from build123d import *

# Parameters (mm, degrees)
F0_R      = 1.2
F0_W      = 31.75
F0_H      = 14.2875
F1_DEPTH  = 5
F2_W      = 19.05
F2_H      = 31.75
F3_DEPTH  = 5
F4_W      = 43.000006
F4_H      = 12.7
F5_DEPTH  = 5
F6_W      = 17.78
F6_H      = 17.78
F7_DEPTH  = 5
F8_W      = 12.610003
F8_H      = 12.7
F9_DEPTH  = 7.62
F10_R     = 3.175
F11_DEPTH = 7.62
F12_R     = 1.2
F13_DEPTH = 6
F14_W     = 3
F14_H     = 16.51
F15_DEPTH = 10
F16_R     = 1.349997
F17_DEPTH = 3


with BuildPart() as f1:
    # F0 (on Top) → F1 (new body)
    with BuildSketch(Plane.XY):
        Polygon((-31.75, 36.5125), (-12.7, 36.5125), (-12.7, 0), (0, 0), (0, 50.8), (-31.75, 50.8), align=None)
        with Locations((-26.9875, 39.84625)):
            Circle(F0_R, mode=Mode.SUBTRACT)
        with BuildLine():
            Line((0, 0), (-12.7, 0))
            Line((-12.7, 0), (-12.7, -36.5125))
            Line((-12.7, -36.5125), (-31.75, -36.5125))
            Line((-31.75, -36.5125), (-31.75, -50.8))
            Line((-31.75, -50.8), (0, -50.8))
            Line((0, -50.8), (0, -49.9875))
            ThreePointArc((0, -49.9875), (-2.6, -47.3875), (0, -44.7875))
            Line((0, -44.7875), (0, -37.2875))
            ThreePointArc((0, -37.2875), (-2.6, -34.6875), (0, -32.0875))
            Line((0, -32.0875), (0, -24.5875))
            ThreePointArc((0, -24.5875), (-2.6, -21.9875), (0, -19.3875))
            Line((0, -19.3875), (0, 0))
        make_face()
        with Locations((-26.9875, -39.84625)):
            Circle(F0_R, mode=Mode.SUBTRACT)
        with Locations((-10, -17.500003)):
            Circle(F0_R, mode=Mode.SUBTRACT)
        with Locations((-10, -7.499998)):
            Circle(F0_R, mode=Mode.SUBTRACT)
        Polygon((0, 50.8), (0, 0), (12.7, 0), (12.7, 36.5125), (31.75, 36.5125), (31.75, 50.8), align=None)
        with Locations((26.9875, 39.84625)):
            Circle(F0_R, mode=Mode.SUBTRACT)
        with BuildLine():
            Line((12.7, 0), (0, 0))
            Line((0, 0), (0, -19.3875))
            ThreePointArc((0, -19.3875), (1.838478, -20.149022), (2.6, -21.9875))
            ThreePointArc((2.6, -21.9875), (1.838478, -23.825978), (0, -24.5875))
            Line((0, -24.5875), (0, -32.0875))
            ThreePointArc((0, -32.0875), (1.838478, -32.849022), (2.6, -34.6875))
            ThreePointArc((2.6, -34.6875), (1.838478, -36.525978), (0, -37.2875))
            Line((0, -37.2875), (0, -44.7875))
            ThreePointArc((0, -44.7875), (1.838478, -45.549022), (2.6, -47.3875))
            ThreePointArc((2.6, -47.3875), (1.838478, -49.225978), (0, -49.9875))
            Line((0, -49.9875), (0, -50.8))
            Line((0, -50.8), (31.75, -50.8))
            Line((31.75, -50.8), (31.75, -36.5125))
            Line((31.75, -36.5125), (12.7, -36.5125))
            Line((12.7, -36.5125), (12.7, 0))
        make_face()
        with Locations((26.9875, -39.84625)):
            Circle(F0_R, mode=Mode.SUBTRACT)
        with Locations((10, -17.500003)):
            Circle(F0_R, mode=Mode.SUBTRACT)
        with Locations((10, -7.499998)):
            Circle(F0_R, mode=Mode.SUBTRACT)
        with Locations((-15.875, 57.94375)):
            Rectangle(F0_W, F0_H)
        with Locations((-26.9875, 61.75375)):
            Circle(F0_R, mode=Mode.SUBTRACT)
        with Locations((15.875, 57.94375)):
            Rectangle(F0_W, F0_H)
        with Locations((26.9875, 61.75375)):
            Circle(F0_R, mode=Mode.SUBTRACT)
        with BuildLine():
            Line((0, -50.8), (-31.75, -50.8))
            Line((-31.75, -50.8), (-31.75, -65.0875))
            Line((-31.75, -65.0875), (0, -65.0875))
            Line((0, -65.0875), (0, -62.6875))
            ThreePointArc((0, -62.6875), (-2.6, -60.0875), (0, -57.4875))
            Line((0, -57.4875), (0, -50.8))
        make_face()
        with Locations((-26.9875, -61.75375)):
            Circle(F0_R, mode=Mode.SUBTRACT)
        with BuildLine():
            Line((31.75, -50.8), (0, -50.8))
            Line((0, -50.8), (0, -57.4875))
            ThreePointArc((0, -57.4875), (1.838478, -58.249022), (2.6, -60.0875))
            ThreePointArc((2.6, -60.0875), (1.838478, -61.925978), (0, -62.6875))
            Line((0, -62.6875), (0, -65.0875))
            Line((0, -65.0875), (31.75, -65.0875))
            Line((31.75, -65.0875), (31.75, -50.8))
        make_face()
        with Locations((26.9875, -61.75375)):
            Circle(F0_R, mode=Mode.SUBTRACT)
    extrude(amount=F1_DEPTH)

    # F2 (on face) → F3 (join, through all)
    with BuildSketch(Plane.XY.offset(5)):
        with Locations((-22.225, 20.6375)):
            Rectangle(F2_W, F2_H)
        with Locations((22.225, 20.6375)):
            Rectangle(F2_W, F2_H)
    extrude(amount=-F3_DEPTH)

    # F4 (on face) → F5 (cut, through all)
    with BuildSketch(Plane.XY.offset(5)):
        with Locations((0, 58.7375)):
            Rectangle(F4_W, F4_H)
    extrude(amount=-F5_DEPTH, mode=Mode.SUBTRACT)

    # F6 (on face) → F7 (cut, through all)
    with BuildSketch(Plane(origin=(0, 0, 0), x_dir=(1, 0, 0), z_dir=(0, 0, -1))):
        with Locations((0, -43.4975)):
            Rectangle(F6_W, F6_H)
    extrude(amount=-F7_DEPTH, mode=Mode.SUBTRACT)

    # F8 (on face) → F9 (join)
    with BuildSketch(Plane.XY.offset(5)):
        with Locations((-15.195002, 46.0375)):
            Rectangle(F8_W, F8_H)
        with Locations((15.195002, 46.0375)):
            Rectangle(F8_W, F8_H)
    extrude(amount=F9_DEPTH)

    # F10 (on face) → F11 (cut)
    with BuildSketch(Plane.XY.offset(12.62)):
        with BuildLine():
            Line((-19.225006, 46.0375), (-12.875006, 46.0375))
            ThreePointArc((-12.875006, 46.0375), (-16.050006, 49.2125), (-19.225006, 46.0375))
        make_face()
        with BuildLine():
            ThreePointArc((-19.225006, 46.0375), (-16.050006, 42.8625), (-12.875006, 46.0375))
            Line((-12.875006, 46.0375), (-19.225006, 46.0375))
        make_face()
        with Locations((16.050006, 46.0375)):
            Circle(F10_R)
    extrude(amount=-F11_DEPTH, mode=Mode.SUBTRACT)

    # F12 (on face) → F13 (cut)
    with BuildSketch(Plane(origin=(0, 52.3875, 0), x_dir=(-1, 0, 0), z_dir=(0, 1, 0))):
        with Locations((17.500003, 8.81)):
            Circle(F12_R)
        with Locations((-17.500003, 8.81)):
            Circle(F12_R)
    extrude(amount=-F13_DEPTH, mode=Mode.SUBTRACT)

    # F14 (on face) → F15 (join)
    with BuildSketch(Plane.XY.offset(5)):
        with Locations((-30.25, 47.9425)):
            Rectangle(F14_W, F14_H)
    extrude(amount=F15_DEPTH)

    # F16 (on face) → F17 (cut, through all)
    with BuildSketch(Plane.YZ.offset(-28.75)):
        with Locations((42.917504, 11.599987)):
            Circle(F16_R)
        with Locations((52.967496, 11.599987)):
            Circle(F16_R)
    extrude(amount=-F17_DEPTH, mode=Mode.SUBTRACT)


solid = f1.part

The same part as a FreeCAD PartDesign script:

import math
import FreeCAD as App
import Part
import Sketcher
Q = App.Units.Quantity

doc = App.newDocument("Part")
params = doc.addObject("Spreadsheet::Sheet", "Params")
for row, (alias, value) in enumerate([
    ("sketch1_width", "2.5 in"),
    ("sketch1_height", "2.875 in"),
    ("sketch1_height2", "1.125 in"),
    ("pad1_length", "5 mm"),
    ("sketch2_width", "0.75 in"),
    ("sketch2_height", "1.25 in"),
    ("sketch3_height", "0.5 in"),
    ("sketch4_width", "0.7 in"),
    ("sketch5_height", "0.5 in"),
    ("pad3_length", "0.3 in"),
    ("sketch6_diameter", "0.25 in"),
    ("pocket3_length", "0.3 in"),
    ("pocket4_length", "6 mm"),
    ("sketch8_height", "0.65 in"),
    ("pad4_length", "10 mm"),
], start=1):
    params.set(f"A{row}", alias)
    params.set(f"B{row}", "=" + value)
    params.setAlias(f"B{row}", alias)

body = doc.addObject("PartDesign::Body", "Body")

sketch1 = doc.addObject("Sketcher::SketchObject", "Sketch")
body.addObject(sketch1)
sketch1.AttachmentSupport = (doc.XY_Plane, [""])
sketch1.MapMode = "FlatFace"
sketch1.addGeometry(Part.LineSegment(App.Vector(-31.8, 36.5, 0), App.Vector(-12.7, 36.5, 0)), False)
sketch1.addGeometry(Part.LineSegment(App.Vector(-12.7, 36.5, 0), App.Vector(-12.7, -36.5, 0)), False)
sketch1.addGeometry(Part.LineSegment(App.Vector(-12.7, -36.5, 0), App.Vector(-31.8, -36.5, 0)), False)
sketch1.addGeometry(Part.LineSegment(App.Vector(-31.8, -36.5, 0), App.Vector(-31.8, -65.1, 0)), False)
sketch1.addGeometry(Part.LineSegment(App.Vector(-31.8, -65.1, 0), App.Vector(31.8, -65.1, 0)), False)
sketch1.addGeometry(Part.LineSegment(App.Vector(31.8, -65.1, 0), App.Vector(31.8, -36.5, 0)), False)
sketch1.addGeometry(Part.LineSegment(App.Vector(31.8, -36.5, 0), App.Vector(12.7, -36.5, 0)), False)
sketch1.addGeometry(Part.LineSegment(App.Vector(12.7, -36.5, 0), App.Vector(12.7, 36.5, 0)), False)
sketch1.addGeometry(Part.LineSegment(App.Vector(12.7, 36.5, 0), App.Vector(31.8, 36.5, 0)), False)
sketch1.addGeometry(Part.LineSegment(App.Vector(31.8, 36.5, 0), App.Vector(31.8, 65.1, 0)), False)
sketch1.addGeometry(Part.LineSegment(App.Vector(31.8, 65.1, 0), App.Vector(-31.8, 65.1, 0)), False)
sketch1.addGeometry(Part.LineSegment(App.Vector(-31.8, 65.1, 0), App.Vector(-31.8, 36.5, 0)), False)
sketch1.addGeometry(Part.Circle(App.Vector(-27, -61.8, 0), App.Vector(0, 0, 1), 1.2), False)
sketch1.addGeometry(Part.Circle(App.Vector(-27, -39.8, 0), App.Vector(0, 0, 1), 1.2), False)
sketch1.addGeometry(Part.Circle(App.Vector(-10, -17.5, 0), App.Vector(0, 0, 1), 1.2), False)
sketch1.addGeometry(Part.Circle(App.Vector(-10, -7.5, 0), App.Vector(0, 0, 1), 1.2), False)
sketch1.addGeometry(Part.ArcOfCircle(Part.Circle(App.Vector(0, -60.1, 0), App.Vector(0, 0, 1), 2.6), math.radians(90), math.radians(270)), False)
sketch1.addGeometry(Part.ArcOfCircle(Part.Circle(App.Vector(0, -60.1, 0), App.Vector(0, 0, 1), 2.6), math.radians(0), math.radians(90)), False)
sketch1.addGeometry(Part.ArcOfCircle(Part.Circle(App.Vector(0, -60.1, 0), App.Vector(0, 0, 1), 2.6), math.radians(-90), math.radians(0)), False)
sketch1.addGeometry(Part.ArcOfCircle(Part.Circle(App.Vector(0, -47.4, 0), App.Vector(0, 0, 1), 2.6), math.radians(90), math.radians(270)), False)
sketch1.addGeometry(Part.ArcOfCircle(Part.Circle(App.Vector(0, -47.4, 0), App.Vector(0, 0, 1), 2.6), math.radians(0), math.radians(90)), False)
sketch1.addGeometry(Part.ArcOfCircle(Part.Circle(App.Vector(0, -47.4, 0), App.Vector(0, 0, 1), 2.6), math.radians(-90), math.radians(0)), False)
sketch1.addGeometry(Part.ArcOfCircle(Part.Circle(App.Vector(0, -34.7, 0), App.Vector(0, 0, 1), 2.6), math.radians(90), math.radians(270)), False)
sketch1.addGeometry(Part.ArcOfCircle(Part.Circle(App.Vector(0, -34.7, 0), App.Vector(0, 0, 1), 2.6), math.radians(0), math.radians(90)), False)
sketch1.addGeometry(Part.ArcOfCircle(Part.Circle(App.Vector(0, -34.7, 0), App.Vector(0, 0, 1), 2.6), math.radians(-90), math.radians(0)), False)
sketch1.addGeometry(Part.Circle(App.Vector(27, -61.8, 0), App.Vector(0, 0, 1), 1.2), False)
sketch1.addGeometry(Part.Circle(App.Vector(27, -39.8, 0), App.Vector(0, 0, 1), 1.2), False)
sketch1.addGeometry(Part.ArcOfCircle(Part.Circle(App.Vector(0, -22, 0), App.Vector(0, 0, 1), 2.6), math.radians(90), math.radians(270)), False)
sketch1.addGeometry(Part.ArcOfCircle(Part.Circle(App.Vector(0, -22, 0), App.Vector(0, 0, 1), 2.6), math.radians(0), math.radians(90)), False)
sketch1.addGeometry(Part.ArcOfCircle(Part.Circle(App.Vector(0, -22, 0), App.Vector(0, 0, 1), 2.6), math.radians(-90), math.radians(0)), False)
sketch1.addGeometry(Part.Circle(App.Vector(10, -17.5, 0), App.Vector(0, 0, 1), 1.2), False)
sketch1.addGeometry(Part.Circle(App.Vector(10, -7.5, 0), App.Vector(0, 0, 1), 1.2), False)
sketch1.addGeometry(Part.Circle(App.Vector(-27, 39.8, 0), App.Vector(0, 0, 1), 1.2), False)
sketch1.addGeometry(Part.Circle(App.Vector(-27, 61.8, 0), App.Vector(0, 0, 1), 1.2), False)
sketch1.addGeometry(Part.Circle(App.Vector(27, 39.8, 0), App.Vector(0, 0, 1), 1.2), False)
sketch1.addGeometry(Part.Circle(App.Vector(27, 61.8, 0), App.Vector(0, 0, 1), 1.2), False)
sketch1.addConstraint(Sketcher.Constraint("Coincident", 0, 2, 1, 1))
sketch1.addConstraint(Sketcher.Constraint("Coincident", 1, 2, 2, 1))
sketch1.addConstraint(Sketcher.Constraint("Coincident", 2, 2, 3, 1))
sketch1.addConstraint(Sketcher.Constraint("Coincident", 3, 2, 4, 1))
sketch1.addConstraint(Sketcher.Constraint("Coincident", 4, 2, 5, 1))
sketch1.addConstraint(Sketcher.Constraint("Coincident", 5, 2, 6, 1))
sketch1.addConstraint(Sketcher.Constraint("Coincident", 6, 2, 7, 1))
sketch1.addConstraint(Sketcher.Constraint("Coincident", 7, 2, 8, 1))
sketch1.addConstraint(Sketcher.Constraint("Coincident", 8, 2, 9, 1))
sketch1.addConstraint(Sketcher.Constraint("Coincident", 9, 2, 10, 1))
sketch1.addConstraint(Sketcher.Constraint("Coincident", 10, 2, 11, 1))
sketch1.addConstraint(Sketcher.Constraint("Coincident", 11, 2, 0, 1))
sketch1.addConstraint(Sketcher.Constraint("Tangent", 16, 1, 17, 2))
sketch1.addConstraint(Sketcher.Constraint("Tangent", 17, 1, 18, 2))
sketch1.addConstraint(Sketcher.Constraint("Tangent", 18, 1, 16, 2))
sketch1.addConstraint(Sketcher.Constraint("Tangent", 19, 1, 20, 2))
sketch1.addConstraint(Sketcher.Constraint("Tangent", 20, 1, 21, 2))
sketch1.addConstraint(Sketcher.Constraint("Tangent", 21, 1, 19, 2))
sketch1.addConstraint(Sketcher.Constraint("Tangent", 22, 1, 23, 2))
sketch1.addConstraint(Sketcher.Constraint("Tangent", 23, 1, 24, 2))
sketch1.addConstraint(Sketcher.Constraint("Tangent", 24, 1, 22, 2))
sketch1.addConstraint(Sketcher.Constraint("Tangent", 27, 1, 28, 2))
sketch1.addConstraint(Sketcher.Constraint("Tangent", 28, 1, 29, 2))
sketch1.addConstraint(Sketcher.Constraint("Tangent", 29, 1, 27, 2))
sketch1.addConstraint(Sketcher.Constraint("Horizontal", 0))
sketch1.addConstraint(Sketcher.Constraint("Vertical", 1))
sketch1.addConstraint(Sketcher.Constraint("Horizontal", 2))
sketch1.addConstraint(Sketcher.Constraint("Vertical", 3))
sketch1.addConstraint(Sketcher.Constraint("Horizontal", 4))
sketch1.addConstraint(Sketcher.Constraint("Vertical", 5))
sketch1.addConstraint(Sketcher.Constraint("Horizontal", 6))
sketch1.addConstraint(Sketcher.Constraint("Vertical", 7))
sketch1.addConstraint(Sketcher.Constraint("Horizontal", 8))
sketch1.addConstraint(Sketcher.Constraint("Vertical", 9))
sketch1.addConstraint(Sketcher.Constraint("Horizontal", 10))
sketch1.addConstraint(Sketcher.Constraint("Vertical", 11))
sketch1.addConstraint(Sketcher.Constraint("Equal", 12, 13))
sketch1.addConstraint(Sketcher.Constraint("Equal", 13, 14))
sketch1.addConstraint(Sketcher.Constraint("Equal", 14, 15))
sketch1.addConstraint(Sketcher.Constraint("Equal", 18, 19))
sketch1.addConstraint(Sketcher.Constraint("Equal", 21, 22))
sketch1.addConstraint(Sketcher.Constraint("Equal", 15, 25))
sketch1.addConstraint(Sketcher.Constraint("Equal", 25, 26))
sketch1.addConstraint(Sketcher.Constraint("Equal", 24, 27))
sketch1.addConstraint(Sketcher.Constraint("Equal", 26, 30))
sketch1.addConstraint(Sketcher.Constraint("Equal", 30, 31))
sketch1.addConstraint(Sketcher.Constraint("Equal", 31, 32))
sketch1.addConstraint(Sketcher.Constraint("Equal", 32, 33))
sketch1.addConstraint(Sketcher.Constraint("Equal", 33, 34))
sketch1.addConstraint(Sketcher.Constraint("Equal", 34, 35))
sketch1.addConstraint(Sketcher.Constraint("Symmetric", 26, 3, 32, 3, -1, 1))
sketch1.addConstraint(Sketcher.Constraint("Symmetric", 25, 3, 33, 3, -1, 1))
sketch1.addConstraint(Sketcher.Constraint("Symmetric", 13, 3, 34, 3, -1, 1))
sketch1.addConstraint(Sketcher.Constraint("Symmetric", 12, 3, 35, 3, -1, 1))
sketch1.addConstraint(Sketcher.Constraint("Symmetric", 0, 2, 6, 2, -1, 1))
sketch1.addConstraint(Sketcher.Constraint("Symmetric", 2, 2, 8, 2, -1, 1))
sketch1.addConstraint(Sketcher.Constraint("Symmetric", 4, 2, 10, 2, -1, 1))
sketch1.addConstraint(Sketcher.Constraint("Symmetric", 12, 3, 25, 3, -2))
sketch1.addConstraint(Sketcher.Constraint("Symmetric", 13, 3, 26, 3, -2))
sketch1.addConstraint(Sketcher.Constraint("Symmetric", 14, 3, 30, 3, -2))
sketch1.addConstraint(Sketcher.Constraint("Symmetric", 15, 3, 31, 3, -2))
sketch1.addConstraint(Sketcher.Constraint("Symmetric", 2, 2, 5, 2, -2))
sketch1.addConstraint(Sketcher.Constraint("PointOnObject", 16, 3, -2))
sketch1.addConstraint(Sketcher.Constraint("PointOnObject", 19, 3, -2))
sketch1.addConstraint(Sketcher.Constraint("PointOnObject", 22, 3, -2))
sketch1.addConstraint(Sketcher.Constraint("PointOnObject", 27, 3, -2))
sketch1.addConstraint(Sketcher.Constraint("PointOnObject", 16, 1, -2))
sketch1.addConstraint(Sketcher.Constraint("PointOnObject", 18, 1, -2))
sketch1.addConstraint(Sketcher.Constraint("PointOnObject", 19, 1, -2))
sketch1.addConstraint(Sketcher.Constraint("PointOnObject", 21, 1, -2))
sketch1.addConstraint(Sketcher.Constraint("PointOnObject", 22, 1, -2))
sketch1.addConstraint(Sketcher.Constraint("PointOnObject", 24, 1, -2))
sketch1.addConstraint(Sketcher.Constraint("PointOnObject", 27, 1, -2))
sketch1.addConstraint(Sketcher.Constraint("PointOnObject", 29, 1, -2))
sketch1.addConstraint(Sketcher.Constraint("Horizontal", 18, 3, 17, 1))
sketch1.addConstraint(Sketcher.Constraint("Horizontal", 21, 3, 20, 1))
sketch1.addConstraint(Sketcher.Constraint("Horizontal", 24, 3, 23, 1))
sketch1.addConstraint(Sketcher.Constraint("Horizontal", 29, 3, 28, 1))
sketch1.addConstraint(Sketcher.Constraint("Vertical", 12, 3, 13, 3))
sketch1.addConstraint(Sketcher.Constraint("Vertical", 14, 3, 15, 3))
sketch1.addConstraint(Sketcher.Constraint("DistanceX", 4, 1, 4, 2, Q("2.5 in")))
sketch1.addConstraint(Sketcher.Constraint("DistanceY", 17, 3, 22, 3, Q("1 in")))
sketch1.addConstraint(Sketcher.Constraint("DistanceX", 0, 2, 7, 2, Q("1 in")))
sketch1.addConstraint(Sketcher.Constraint("DistanceY", 17, 3, 19, 3, Q("0.5 in")))
sketch1.addConstraint(Sketcher.Constraint("DistanceY", 23, 3, 27, 3, Q("0.5 in")))
sketch1.addConstraint(Sketcher.Constraint("Diameter", 12, Q("2.4 mm")))
sketch1.addConstraint(Sketcher.Constraint("DistanceY", 1, 2, 1, 1, Q("2.875 in")))
sketch1.addConstraint(Sketcher.Constraint("DistanceY", 3, 2, 3, 1, Q("1.125 in")))
sketch1.addConstraint(Sketcher.Constraint("Radius", 16, Q("2.6 mm")))
sketch1.addConstraint(Sketcher.Constraint("DistanceX", 12, 3, -1, 1, Q("1.0625 in")))
sketch1.addConstraint(Sketcher.Constraint("DistanceY", 12, 3, 13, 3, Q("0.8625 in")))
sketch1.addConstraint(Sketcher.Constraint("DistanceX", 14, 3, -1, 1, Q("10 mm")))
sketch1.addConstraint(Sketcher.Constraint("DistanceY", 16, 3, -1, 1, Q("60.0875 mm")))
sketch1.addConstraint(Sketcher.Constraint("DistanceY", 17, 3, 15, 3, Q("52.587501 mm")))
sketch1.addConstraint(Sketcher.Constraint("DistanceY", 18, 3, 14, 3, Q("42.587498 mm")))
sketch1.addConstraint(Sketcher.Constraint("DistanceY", 12, 3, -1, 1, Q("61.75375 mm")))
sketch1.setExpression("Constraints[80]", "Params.sketch1_width")
sketch1.setExpression("Constraints[86]", "Params.sketch1_height")
sketch1.setExpression("Constraints[87]", "Params.sketch1_height2")
pad1 = doc.addObject("PartDesign::Pad", "Pad")
body.addObject(pad1)
pad1.Profile = sketch1
pad1.setExpression("Length", "Params.pad1_length")

sketch2 = doc.addObject("Sketcher::SketchObject", "Sketch001")
body.addObject(sketch2)
sketch2.AttachmentSupport = (doc.XY_Plane, [""])
sketch2.MapMode = "FlatFace"
sketch2.AttachmentOffset = App.Placement(App.Vector(0, 0, 5), App.Rotation())
sketch2.addGeometry(Part.LineSegment(App.Vector(-32, 37, 0), App.Vector(-32, 5, 0)), False)
sketch2.addGeometry(Part.LineSegment(App.Vector(-32, 5, 0), App.Vector(-13, 5, 0)), False)
sketch2.addGeometry(Part.LineSegment(App.Vector(-13, 5, 0), App.Vector(-13, 37, 0)), False)
sketch2.addGeometry(Part.LineSegment(App.Vector(-13, 37, 0), App.Vector(-32, 37, 0)), False)
sketch2.addGeometry(Part.LineSegment(App.Vector(13, 37, 0), App.Vector(13, 5, 0)), False)
sketch2.addGeometry(Part.LineSegment(App.Vector(13, 5, 0), App.Vector(32, 5, 0)), False)
sketch2.addGeometry(Part.LineSegment(App.Vector(32, 5, 0), App.Vector(32, 37, 0)), False)
sketch2.addGeometry(Part.LineSegment(App.Vector(32, 37, 0), App.Vector(13, 37, 0)), False)
sketch2.addConstraint(Sketcher.Constraint("Coincident", 0, 2, 1, 1))
sketch2.addConstraint(Sketcher.Constraint("Coincident", 1, 2, 2, 1))
sketch2.addConstraint(Sketcher.Constraint("Coincident", 2, 2, 3, 1))
sketch2.addConstraint(Sketcher.Constraint("Coincident", 3, 2, 0, 1))
sketch2.addConstraint(Sketcher.Constraint("Coincident", 4, 2, 5, 1))
sketch2.addConstraint(Sketcher.Constraint("Coincident", 5, 2, 6, 1))
sketch2.addConstraint(Sketcher.Constraint("Coincident", 6, 2, 7, 1))
sketch2.addConstraint(Sketcher.Constraint("Coincident", 7, 2, 4, 1))
sketch2.addConstraint(Sketcher.Constraint("Vertical", 0))
sketch2.addConstraint(Sketcher.Constraint("Horizontal", 1))
sketch2.addConstraint(Sketcher.Constraint("Vertical", 2))
sketch2.addConstraint(Sketcher.Constraint("Horizontal", 3))
sketch2.addConstraint(Sketcher.Constraint("Vertical", 4))
sketch2.addConstraint(Sketcher.Constraint("Horizontal", 5))
sketch2.addConstraint(Sketcher.Constraint("Vertical", 6))
sketch2.addConstraint(Sketcher.Constraint("Horizontal", 7))
sketch2.addConstraint(Sketcher.Constraint("Symmetric", 1, 2, 4, 2, -2))
sketch2.addConstraint(Sketcher.Constraint("Symmetric", 3, 2, 6, 2, -2))
sketch2.addConstraint(Sketcher.Constraint("DistanceX", 1, 2, 4, 2, Q("1 in")))
sketch2.addConstraint(Sketcher.Constraint("DistanceX", 1, 1, 1, 2, Q("0.75 in")))
sketch2.addConstraint(Sketcher.Constraint("DistanceY", 0, 2, 0, 1, Q("1.25 in")))
sketch2.addConstraint(Sketcher.Constraint("DistanceY", -1, 1, 0, 2, Q("0.1875 in")))
sketch2.setExpression("Constraints[19]", "Params.sketch2_width")
sketch2.setExpression("Constraints[20]", "Params.sketch2_height")
pad2 = doc.addObject("PartDesign::Pad", "Pad001")
body.addObject(pad2)
pad2.Profile = sketch2
pad2.Type = "UpToLast"
pad2.Reversed = True

sketch3 = doc.addObject("Sketcher::SketchObject", "Sketch002")
body.addObject(sketch3)
sketch3.AttachmentSupport = (doc.XY_Plane, [""])
sketch3.MapMode = "FlatFace"
sketch3.AttachmentOffset = App.Placement(App.Vector(0, 0, 5), App.Rotation())
sketch3.addGeometry(Part.LineSegment(App.Vector(-22, 65, 0), App.Vector(-22, 52, 0)), False)
sketch3.addGeometry(Part.LineSegment(App.Vector(-22, 52, 0), App.Vector(22, 52, 0)), False)
sketch3.addGeometry(Part.LineSegment(App.Vector(22, 52, 0), App.Vector(22, 65, 0)), False)
sketch3.addGeometry(Part.LineSegment(App.Vector(22, 65, 0), App.Vector(-22, 65, 0)), False)
sketch3.addConstraint(Sketcher.Constraint("Coincident", 0, 2, 1, 1))
sketch3.addConstraint(Sketcher.Constraint("Coincident", 1, 2, 2, 1))
sketch3.addConstraint(Sketcher.Constraint("Coincident", 2, 2, 3, 1))
sketch3.addConstraint(Sketcher.Constraint("Coincident", 3, 2, 0, 1))
sketch3.addConstraint(Sketcher.Constraint("Vertical", 0))
sketch3.addConstraint(Sketcher.Constraint("Horizontal", 1))
sketch3.addConstraint(Sketcher.Constraint("Vertical", 2))
sketch3.addConstraint(Sketcher.Constraint("Horizontal", 3))
sketch3.addConstraint(Sketcher.Constraint("DistanceY", 0, 2, 0, 1, Q("0.5 in")))
sketch3.addConstraint(Sketcher.Constraint("DistanceY", -1, 1, 0, 2, Q("2.0625 in")))
sketch3.addConstraint(Sketcher.Constraint("DistanceX", 1, 1, 1, 2, Q("43.000006 mm")))
sketch3.addConstraint(Sketcher.Constraint("DistanceX", 0, 2, -1, 1, Q("21.500003 mm")))
sketch3.setExpression("Constraints[8]", "Params.sketch3_height")
pocket1 = doc.addObject("PartDesign::Pocket", "Pocket")
body.addObject(pocket1)
pocket1.Profile = sketch3
pocket1.Type = "ThroughAll"

sketch4 = doc.addObject("Sketcher::SketchObject", "Sketch003")
body.addObject(sketch4)
sketch4.AttachmentSupport = (doc.XY_Plane, [""])
sketch4.MapMode = "FlatFace"
sketch4.addGeometry(Part.LineSegment(App.Vector(-9, 35, 0), App.Vector(-9, 52, 0)), False)
sketch4.addGeometry(Part.LineSegment(App.Vector(-9, 52, 0), App.Vector(9, 52, 0)), False)
sketch4.addGeometry(Part.LineSegment(App.Vector(9, 52, 0), App.Vector(9, 35, 0)), False)
sketch4.addGeometry(Part.LineSegment(App.Vector(9, 35, 0), App.Vector(-9, 35, 0)), False)
sketch4.addConstraint(Sketcher.Constraint("Coincident", 0, 2, 1, 1))
sketch4.addConstraint(Sketcher.Constraint("Coincident", 1, 2, 2, 1))
sketch4.addConstraint(Sketcher.Constraint("Coincident", 2, 2, 3, 1))
sketch4.addConstraint(Sketcher.Constraint("Coincident", 3, 2, 0, 1))
sketch4.addConstraint(Sketcher.Constraint("Vertical", 0))
sketch4.addConstraint(Sketcher.Constraint("Horizontal", 1))
sketch4.addConstraint(Sketcher.Constraint("Vertical", 2))
sketch4.addConstraint(Sketcher.Constraint("Horizontal", 3))
sketch4.addConstraint(Sketcher.Constraint("Equal", 3, 0))
sketch4.addConstraint(Sketcher.Constraint("DistanceX", 1, 1, 1, 2, Q("0.7 in")))
sketch4.addConstraint(Sketcher.Constraint("DistanceX", 0, 2, -1, 1, Q("0.35 in")))
sketch4.addConstraint(Sketcher.Constraint("DistanceY", -1, 1, 0, 2, Q("2.0625 in")))
sketch4.setExpression("Constraints[9]", "Params.sketch4_width")
pocket2 = doc.addObject("PartDesign::Pocket", "Pocket001")
body.addObject(pocket2)
pocket2.Profile = sketch4
pocket2.Type = "ThroughAll"
pocket2.Reversed = True

sketch5 = doc.addObject("Sketcher::SketchObject", "Sketch004")
body.addObject(sketch5)
sketch5.AttachmentSupport = (doc.XY_Plane, [""])
sketch5.MapMode = "FlatFace"
sketch5.AttachmentOffset = App.Placement(App.Vector(0, 0, 5), App.Rotation())
sketch5.addGeometry(Part.LineSegment(App.Vector(-22, 52, 0), App.Vector(-22, 40, 0)), False)
sketch5.addGeometry(Part.LineSegment(App.Vector(-22, 40, 0), App.Vector(-9, 40, 0)), False)
sketch5.addGeometry(Part.LineSegment(App.Vector(-9, 40, 0), App.Vector(-9, 52, 0)), False)
sketch5.addGeometry(Part.LineSegment(App.Vector(-9, 52, 0), App.Vector(-22, 52, 0)), False)
sketch5.addGeometry(Part.LineSegment(App.Vector(9, 52, 0), App.Vector(9, 40, 0)), False)
sketch5.addGeometry(Part.LineSegment(App.Vector(9, 40, 0), App.Vector(22, 40, 0)), False)
sketch5.addGeometry(Part.LineSegment(App.Vector(22, 40, 0), App.Vector(22, 52, 0)), False)
sketch5.addGeometry(Part.LineSegment(App.Vector(22, 52, 0), App.Vector(9, 52, 0)), False)
sketch5.addConstraint(Sketcher.Constraint("Coincident", 0, 2, 1, 1))
sketch5.addConstraint(Sketcher.Constraint("Coincident", 1, 2, 2, 1))
sketch5.addConstraint(Sketcher.Constraint("Coincident", 2, 2, 3, 1))
sketch5.addConstraint(Sketcher.Constraint("Coincident", 3, 2, 0, 1))
sketch5.addConstraint(Sketcher.Constraint("Coincident", 4, 2, 5, 1))
sketch5.addConstraint(Sketcher.Constraint("Coincident", 5, 2, 6, 1))
sketch5.addConstraint(Sketcher.Constraint("Coincident", 6, 2, 7, 1))
sketch5.addConstraint(Sketcher.Constraint("Coincident", 7, 2, 4, 1))
sketch5.addConstraint(Sketcher.Constraint("Vertical", 0))
sketch5.addConstraint(Sketcher.Constraint("Horizontal", 1))
sketch5.addConstraint(Sketcher.Constraint("Vertical", 2))
sketch5.addConstraint(Sketcher.Constraint("Horizontal", 3))
sketch5.addConstraint(Sketcher.Constraint("Vertical", 4))
sketch5.addConstraint(Sketcher.Constraint("Horizontal", 5))
sketch5.addConstraint(Sketcher.Constraint("Vertical", 6))
sketch5.addConstraint(Sketcher.Constraint("Horizontal", 7))
sketch5.addConstraint(Sketcher.Constraint("Symmetric", 1, 2, 4, 2, -2))
sketch5.addConstraint(Sketcher.Constraint("Symmetric", 3, 2, 6, 2, -2))
sketch5.addConstraint(Sketcher.Constraint("DistanceY", 0, 2, 0, 1, Q("0.5 in")))
sketch5.addConstraint(Sketcher.Constraint("DistanceX", 1, 2, 4, 2, Q("0.7 in")))
sketch5.addConstraint(Sketcher.Constraint("DistanceY", -1, 1, 0, 2, Q("1.5625 in")))
sketch5.addConstraint(Sketcher.Constraint("DistanceX", 1, 1, 1, 2, Q("12.610003 mm")))
sketch5.setExpression("Constraints[18]", "Params.sketch5_height")
pad3 = doc.addObject("PartDesign::Pad", "Pad002")
body.addObject(pad3)
pad3.Profile = sketch5
pad3.setExpression("Length", "Params.pad3_length")

sketch6 = doc.addObject("Sketcher::SketchObject", "Sketch005")
body.addObject(sketch6)
sketch6.AttachmentSupport = (doc.XY_Plane, [""])
sketch6.MapMode = "FlatFace"
sketch6.AttachmentOffset = App.Placement(App.Vector(0, 0, 12.62), App.Rotation())
sketch6.addGeometry(Part.Circle(App.Vector(-16.1, 46, 0), App.Vector(0, 0, 1), 3.2), False)
sketch6.addGeometry(Part.Circle(App.Vector(16.1, 46, 0), App.Vector(0, 0, 1), 3.2), False)
sketch6.addConstraint(Sketcher.Constraint("Equal", 0, 1))
sketch6.addConstraint(Sketcher.Constraint("Symmetric", 0, 3, 1, 3, -2))
sketch6.addConstraint(Sketcher.Constraint("Diameter", 0, Q("0.25 in")))
sketch6.addConstraint(Sketcher.Constraint("DistanceY", -1, 1, 0, 3, Q("1.8125 in")))
sketch6.addConstraint(Sketcher.Constraint("DistanceX", 0, 3, -1, 1, Q("16.050006 mm")))
sketch6.setExpression("Constraints[2]", "Params.sketch6_diameter")
pocket3 = doc.addObject("PartDesign::Pocket", "Pocket002")
body.addObject(pocket3)
pocket3.Profile = sketch6
pocket3.setExpression("Length", "Params.pocket3_length")

sketch7 = doc.addObject("Sketcher::SketchObject", "Sketch006")
body.addObject(sketch7)
sketch7.AttachmentSupport = (doc.XZ_Plane, [""])
sketch7.MapMode = "FlatFace"
sketch7.AttachmentOffset = App.Placement(App.Vector(0, 0, -2.0625 * 25.4), App.Rotation())
sketch7.addGeometry(Part.Circle(App.Vector(-17.5, 8.8, 0), App.Vector(0, 0, 1), 1.2), False)
sketch7.addGeometry(Part.Circle(App.Vector(17.5, 8.8, 0), App.Vector(0, 0, 1), 1.2), False)
sketch7.addConstraint(Sketcher.Constraint("Equal", 0, 1))
sketch7.addConstraint(Sketcher.Constraint("Symmetric", 0, 3, 1, 3, -2))
sketch7.addConstraint(Sketcher.Constraint("Diameter", 0, Q("2.4 mm")))
sketch7.addConstraint(Sketcher.Constraint("DistanceY", -1, 1, 0, 3, Q("8.81 mm")))
sketch7.addConstraint(Sketcher.Constraint("DistanceX", 0, 3, -1, 1, Q("17.500003 mm")))
pocket4 = doc.addObject("PartDesign::Pocket", "Pocket003")
body.addObject(pocket4)
pocket4.Profile = sketch7
pocket4.setExpression("Length", "Params.pocket4_length")
pocket4.Reversed = True

sketch8 = doc.addObject("Sketcher::SketchObject", "Sketch007")
body.addObject(sketch8)
sketch8.AttachmentSupport = (doc.XY_Plane, [""])
sketch8.MapMode = "FlatFace"
sketch8.AttachmentOffset = App.Placement(App.Vector(0, 0, 5), App.Rotation())
sketch8.addGeometry(Part.LineSegment(App.Vector(-31.8, 56.2, 0), App.Vector(-31.8, 39.7, 0)), False)
sketch8.addGeometry(Part.LineSegment(App.Vector(-31.8, 39.7, 0), App.Vector(-28.8, 39.7, 0)), False)
sketch8.addGeometry(Part.LineSegment(App.Vector(-28.8, 39.7, 0), App.Vector(-28.8, 56.2, 0)), False)
sketch8.addGeometry(Part.LineSegment(App.Vector(-28.8, 56.2, 0), App.Vector(-31.8, 56.2, 0)), False)
sketch8.addConstraint(Sketcher.Constraint("Coincident", 0, 2, 1, 1))
sketch8.addConstraint(Sketcher.Constraint("Coincident", 1, 2, 2, 1))
sketch8.addConstraint(Sketcher.Constraint("Coincident", 2, 2, 3, 1))
sketch8.addConstraint(Sketcher.Constraint("Coincident", 3, 2, 0, 1))
sketch8.addConstraint(Sketcher.Constraint("Vertical", 0))
sketch8.addConstraint(Sketcher.Constraint("Horizontal", 1))
sketch8.addConstraint(Sketcher.Constraint("Vertical", 2))
sketch8.addConstraint(Sketcher.Constraint("Horizontal", 3))
sketch8.addConstraint(Sketcher.Constraint("DistanceY", 0, 2, 0, 1, Q("0.65 in")))
sketch8.addConstraint(Sketcher.Constraint("DistanceX", 0, 2, -1, 1, Q("1.25 in")))
sketch8.addConstraint(Sketcher.Constraint("DistanceY", -1, 1, 0, 2, Q("1.5625 in")))
sketch8.addConstraint(Sketcher.Constraint("DistanceX", 1, 1, 1, 2, Q("3 mm")))
sketch8.setExpression("Constraints[8]", "Params.sketch8_height")
pad4 = doc.addObject("PartDesign::Pad", "Pad003")
body.addObject(pad4)
pad4.Profile = sketch8
pad4.setExpression("Length", "Params.pad4_length")

sketch9 = doc.addObject("Sketcher::SketchObject", "Sketch008")
body.addObject(sketch9)
sketch9.AttachmentSupport = (doc.YZ_Plane, [""])
sketch9.MapMode = "FlatFace"
sketch9.AttachmentOffset = App.Placement(App.Vector(0, 0, -28.75), App.Rotation())
sketch9.addGeometry(Part.Circle(App.Vector(42.9, 11.6, 0), App.Vector(0, 0, 1), 1.3), False)
sketch9.addGeometry(Part.Circle(App.Vector(53, 11.6, 0), App.Vector(0, 0, 1), 1.3), False)
sketch9.addConstraint(Sketcher.Constraint("Equal", 0, 1))
sketch9.addConstraint(Sketcher.Constraint("Horizontal", 0, 3, 1, 3))
sketch9.addConstraint(Sketcher.Constraint("Diameter", 0, Q("2.699994 mm")))
sketch9.addConstraint(Sketcher.Constraint("DistanceX", 0, 3, 1, 3, Q("10.049992 mm")))
sketch9.addConstraint(Sketcher.Constraint("DistanceX", -1, 1, 0, 3, Q("42.917504 mm")))
sketch9.addConstraint(Sketcher.Constraint("DistanceY", -1, 1, 0, 3, Q("11.599987 mm")))
pocket5 = doc.addObject("PartDesign::Pocket", "Pocket004")
body.addObject(pocket5)
pocket5.Profile = sketch9
pocket5.Type = "ThroughAll"

doc.recompute()
